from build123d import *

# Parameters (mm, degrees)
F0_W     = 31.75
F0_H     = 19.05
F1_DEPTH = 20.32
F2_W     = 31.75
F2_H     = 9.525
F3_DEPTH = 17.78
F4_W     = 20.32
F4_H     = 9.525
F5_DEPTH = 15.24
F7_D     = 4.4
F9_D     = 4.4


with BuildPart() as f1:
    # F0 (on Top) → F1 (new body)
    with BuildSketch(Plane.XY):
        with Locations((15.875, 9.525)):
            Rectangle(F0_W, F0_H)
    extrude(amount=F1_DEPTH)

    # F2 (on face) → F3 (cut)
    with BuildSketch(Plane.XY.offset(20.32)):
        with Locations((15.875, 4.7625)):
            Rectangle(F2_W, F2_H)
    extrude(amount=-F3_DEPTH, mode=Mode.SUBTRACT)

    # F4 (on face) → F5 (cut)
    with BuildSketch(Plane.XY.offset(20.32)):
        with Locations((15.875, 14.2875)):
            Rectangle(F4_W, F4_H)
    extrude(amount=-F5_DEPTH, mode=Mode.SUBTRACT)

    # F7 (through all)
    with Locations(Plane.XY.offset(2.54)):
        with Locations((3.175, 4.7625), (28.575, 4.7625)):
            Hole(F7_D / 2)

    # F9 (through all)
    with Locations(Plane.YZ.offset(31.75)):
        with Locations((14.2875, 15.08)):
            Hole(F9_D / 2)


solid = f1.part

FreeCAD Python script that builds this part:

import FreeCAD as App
import Part
import Sketcher
from FreeCAD import Vector
Q = App.Units.Quantity

doc = App.newDocument("Part")
params = doc.addObject("Spreadsheet::Sheet", "Params")
for row, (alias, value) in enumerate([
    ("sketch1_width", "1.25 in"),
    ("sketch1_height", "0.75 in"),
    ("pad1_length", "0.8 in"),
    ("sketch2_width", "1.25 in"),
    ("sketch2_height", "0.375 in"),
    ("pocket1_length", "0.7 in"),
    ("sketch3_width", "0.8 in"),
    ("sketch3_height", "0.375 in"),
    ("pocket2_length", "0.6 in"),
    ("hole_diameter", "4.4 mm"),
    ("hole2_diameter", "4.4 mm"),
], start=1):
    params.set(f"A{row}", alias)
    params.set(f"B{row}", "=" + value)
    params.setAlias(f"B{row}", alias)

body = doc.addObject("PartDesign::Body", "Body")

# Sketch on XY plane
sketch1 = body.newObject("Sketcher::SketchObject", "Sketch")
sketch1.AttachmentSupport = (doc.getObject("XY_Plane"), [""])
sketch1.MapMode = "FlatFace"
sketch1.addGeometry([
    Part.LineSegment(Vector(0, 19.05, 0), Vector(0, 0, 0)),
    Part.LineSegment(Vector(0, 0, 0), Vector(31.75, 0, 0)),
    Part.LineSegment(Vector(31.75, 0, 0), Vector(31.75, 19.05, 0)),
    Part.LineSegment(Vector(31.75, 19.05, 0), Vector(0, 19.05, 0)),
], False)
sketch1.addConstraint([
    Sketcher.Constraint("Coincident", 0, 2, 1, 1),
    Sketcher.Constraint("Coincident", 1, 2, 2, 1),
    Sketcher.Constraint("Coincident", 2, 2, 3, 1),
    Sketcher.Constraint("Coincident", 3, 2, 0, 1),
    Sketcher.Constraint("Vertical", 0),
    Sketcher.Constraint("Horizontal", 1),
    Sketcher.Constraint("Vertical", 2),
    Sketcher.Constraint("Horizontal", 3),
    Sketcher.Constraint("Coincident", 0, 2, -1, 1),
    Sketcher.Constraint("DistanceX", 1, 1, 1, 2, Q("1.25 in")),
    Sketcher.Constraint("DistanceY", 0, 2, 0, 1, Q("0.75 in")),
])
sketch1.setExpression("Constraints[9]", "Params.sketch1_width")
sketch1.setExpression("Constraints[10]", "Params.sketch1_height")
pad1 = body.newObject("PartDesign::Pad", "Pad")
pad1.Profile = sketch1
pad1.setExpression("Length", "Params.pad1_length")

# Sketch on XY plane
sketch2 = body.newObject("Sketcher::SketchObject", "Sketch001")
sketch2.AttachmentSupport = (doc.getObject("XY_Plane"), [""])
sketch2.MapMode = "FlatFace"
sketch2.AttachmentOffset = App.Placement(Vector(0, 0, 0.8 * 25.4), App.Rotation())
sketch2.addGeometry([
    Part.LineSegment(Vector(0, 9.525, 0), Vector(0, 0, 0)),
    Part.LineSegment(Vector(0, 0, 0), Vector(31.75, 0, 0)),
    Part.LineSegment(Vector(31.75, 0, 0), Vector(31.75, 9.525, 0)),
    Part.LineSegment(Vector(31.75, 9.525, 0), Vector(0, 9.525, 0)),
], False)
sketch2.addConstraint([
    Sketcher.Constraint("Coincident", 0, 2, 1, 1),
    Sketcher.Constraint("Coincident", 1, 2, 2, 1),
    Sketcher.Constraint("Coincident", 2, 2, 3, 1),
    Sketcher.Constraint("Coincident", 3, 2, 0, 1),
    Sketcher.Constraint("Vertical", 0),
    Sketcher.Constraint("Horizontal", 1),
    Sketcher.Constraint("Vertical", 2),
    Sketcher.Constraint("Horizontal", 3),
    Sketcher.Constraint("Coincident", 0, 2, -1, 1),
    Sketcher.Constraint("DistanceX", 1, 1, 1, 2, Q("1.25 in")),
    Sketcher.Constraint("DistanceY", 0, 2, 0, 1, Q("0.375 in")),
])
sketch2.setExpression("Constraints[9]", "Params.sketch2_width")
sketch2.setExpression("Constraints[10]", "Params.sketch2_height")
pocket1 = body.newObject("PartDesign::Pocket", "Pocket")
pocket1.Profile = sketch2
pocket1.setExpression("Length", "Params.pocket1_length")

# Sketch on XY plane
sketch3 = body.newObject("Sketcher::SketchObject", "Sketch002")
sketch3.AttachmentSupport = (doc.getObject("XY_Plane"), [""])
sketch3.MapMode = "FlatFace"
sketch3.AttachmentOffset = App.Placement(Vector(0, 0, 0.8 * 25.4), App.Rotation())
sketch3.addGeometry([
    Part.LineSegment(Vector(5.715, 19.05, 0), Vector(5.715, 9.525, 0)),
    Part.LineSegment(Vector(5.715, 9.525, 0), Vector(26.035, 9.525, 0)),
    Part.LineSegment(Vector(26.035, 9.525, 0), Vector(26.035, 19.05, 0)),
    Part.LineSegment(Vector(26.035, 19.05, 0), Vector(5.715, 19.05, 0)),
], False)
sketch3.addConstraint([
    Sketcher.Constraint("Coincident", 0, 2, 1, 1),
    Sketcher.Constraint("Coincident", 1, 2, 2, 1),
    Sketcher.Constraint("Coincident", 2, 2, 3, 1),
    Sketcher.Constraint("Coincident", 3, 2, 0, 1),
    Sketcher.Constraint("Vertical", 0),
    Sketcher.Constraint("Horizontal", 1),
    Sketcher.Constraint("Vertical", 2),
    Sketcher.Constraint("Horizontal", 3),
    Sketcher.Constraint("DistanceX", 1, 1, 1, 2, Q("0.8 in")),
    Sketcher.Constraint("DistanceY", 0, 2, 0, 1, Q("0.375 in")),
    Sketcher.Constraint("DistanceY", -1, 1, 2, 2, Q("0.75 in")),
    Sketcher.Constraint("DistanceX", -1, 1, 0, 2, Q("0.225 in")),
])
sketch3.setExpression("Constraints[8]", "Params.sketch3_width")
sketch3.setExpression("Constraints[9]", "Params.sketch3_height")
pocket2 = body.newObject("PartDesign::Pocket", "Pocket001")
pocket2.Profile = sketch3
pocket2.setExpression("Length", "Params.pocket2_length")

# Sketch on XY plane
sketch4 = body.newObject("Sketcher::SketchObject", "Sketch003")
sketch4.AttachmentSupport = (doc.getObject("XY_Plane"), [""])
sketch4.MapMode = "FlatFace"
sketch4.AttachmentOffset = App.Placement(Vector(0, 0, 0.1 * 25.4), App.Rotation())
sketch4.addGeometry([
    Part.Circle(Vector(3.175, 4.7625, 0), Vector(0, 0, 1), 2.2),
    Part.Circle(Vector(28.575, 4.7625, 0), Vector(0, 0, 1), 2.2),
], False)
sketch4.addConstraint([
    Sketcher.Constraint("Equal", 0, 1),
    Sketcher.Constraint("Horizontal", 0, 3, 1, 3),
    Sketcher.Constraint("DistanceX", 0, 3, 1, 3, Q("1 in")),
    Sketcher.Constraint("Diameter", 0, Q("4.4 mm")),
    Sketcher.Constraint("DistanceX", -1, 1, 0, 3, Q("0.125 in")),
    Sketcher.Constraint("DistanceY", -1, 1, 0, 3, Q("0.1875 in")),
])
doc.recompute()
hole = body.newObject("PartDesign::Hole", "Hole")
hole.Profile = sketch4
hole.ThreadType = "None"
hole.setExpression("Diameter", "Params.hole_diameter")
hole.DepthType = "ThroughAll"

# Sketch on YZ plane
sketch5 = body.newObject("Sketcher::SketchObject", "Sketch004")
sketch5.AttachmentSupport = (doc.getObject("YZ_Plane"), [""])
sketch5.MapMode = "FlatFace"
sketch5.AttachmentOffset = App.Placement(Vector(0, 0, 1.25 * 25.4), App.Rotation())
sketch5.addGeometry(Part.Circle(Vector(14.2875, 15.08, 0), Vector(0, 0, 1), 2.2), False)
sketch5.addConstraint([
    Sketcher.Constraint("Diameter", 0, Q("4.4 mm")),
    Sketcher.Constraint("DistanceX", -1, 1, 0, 3, Q("0.5625 in")),
    Sketcher.Constraint("DistanceY", -1, 1, 0, 3, Q("15.08 mm")),
])
doc.recompute()
hole2 = body.newObject("PartDesign::Hole", "Hole001")
hole2.Profile = sketch5
hole2.ThreadType = "None"
hole2.setExpression("Diameter", "Params.hole2_diameter")
hole2.DepthType = "ThroughAll"

doc.recompute()
